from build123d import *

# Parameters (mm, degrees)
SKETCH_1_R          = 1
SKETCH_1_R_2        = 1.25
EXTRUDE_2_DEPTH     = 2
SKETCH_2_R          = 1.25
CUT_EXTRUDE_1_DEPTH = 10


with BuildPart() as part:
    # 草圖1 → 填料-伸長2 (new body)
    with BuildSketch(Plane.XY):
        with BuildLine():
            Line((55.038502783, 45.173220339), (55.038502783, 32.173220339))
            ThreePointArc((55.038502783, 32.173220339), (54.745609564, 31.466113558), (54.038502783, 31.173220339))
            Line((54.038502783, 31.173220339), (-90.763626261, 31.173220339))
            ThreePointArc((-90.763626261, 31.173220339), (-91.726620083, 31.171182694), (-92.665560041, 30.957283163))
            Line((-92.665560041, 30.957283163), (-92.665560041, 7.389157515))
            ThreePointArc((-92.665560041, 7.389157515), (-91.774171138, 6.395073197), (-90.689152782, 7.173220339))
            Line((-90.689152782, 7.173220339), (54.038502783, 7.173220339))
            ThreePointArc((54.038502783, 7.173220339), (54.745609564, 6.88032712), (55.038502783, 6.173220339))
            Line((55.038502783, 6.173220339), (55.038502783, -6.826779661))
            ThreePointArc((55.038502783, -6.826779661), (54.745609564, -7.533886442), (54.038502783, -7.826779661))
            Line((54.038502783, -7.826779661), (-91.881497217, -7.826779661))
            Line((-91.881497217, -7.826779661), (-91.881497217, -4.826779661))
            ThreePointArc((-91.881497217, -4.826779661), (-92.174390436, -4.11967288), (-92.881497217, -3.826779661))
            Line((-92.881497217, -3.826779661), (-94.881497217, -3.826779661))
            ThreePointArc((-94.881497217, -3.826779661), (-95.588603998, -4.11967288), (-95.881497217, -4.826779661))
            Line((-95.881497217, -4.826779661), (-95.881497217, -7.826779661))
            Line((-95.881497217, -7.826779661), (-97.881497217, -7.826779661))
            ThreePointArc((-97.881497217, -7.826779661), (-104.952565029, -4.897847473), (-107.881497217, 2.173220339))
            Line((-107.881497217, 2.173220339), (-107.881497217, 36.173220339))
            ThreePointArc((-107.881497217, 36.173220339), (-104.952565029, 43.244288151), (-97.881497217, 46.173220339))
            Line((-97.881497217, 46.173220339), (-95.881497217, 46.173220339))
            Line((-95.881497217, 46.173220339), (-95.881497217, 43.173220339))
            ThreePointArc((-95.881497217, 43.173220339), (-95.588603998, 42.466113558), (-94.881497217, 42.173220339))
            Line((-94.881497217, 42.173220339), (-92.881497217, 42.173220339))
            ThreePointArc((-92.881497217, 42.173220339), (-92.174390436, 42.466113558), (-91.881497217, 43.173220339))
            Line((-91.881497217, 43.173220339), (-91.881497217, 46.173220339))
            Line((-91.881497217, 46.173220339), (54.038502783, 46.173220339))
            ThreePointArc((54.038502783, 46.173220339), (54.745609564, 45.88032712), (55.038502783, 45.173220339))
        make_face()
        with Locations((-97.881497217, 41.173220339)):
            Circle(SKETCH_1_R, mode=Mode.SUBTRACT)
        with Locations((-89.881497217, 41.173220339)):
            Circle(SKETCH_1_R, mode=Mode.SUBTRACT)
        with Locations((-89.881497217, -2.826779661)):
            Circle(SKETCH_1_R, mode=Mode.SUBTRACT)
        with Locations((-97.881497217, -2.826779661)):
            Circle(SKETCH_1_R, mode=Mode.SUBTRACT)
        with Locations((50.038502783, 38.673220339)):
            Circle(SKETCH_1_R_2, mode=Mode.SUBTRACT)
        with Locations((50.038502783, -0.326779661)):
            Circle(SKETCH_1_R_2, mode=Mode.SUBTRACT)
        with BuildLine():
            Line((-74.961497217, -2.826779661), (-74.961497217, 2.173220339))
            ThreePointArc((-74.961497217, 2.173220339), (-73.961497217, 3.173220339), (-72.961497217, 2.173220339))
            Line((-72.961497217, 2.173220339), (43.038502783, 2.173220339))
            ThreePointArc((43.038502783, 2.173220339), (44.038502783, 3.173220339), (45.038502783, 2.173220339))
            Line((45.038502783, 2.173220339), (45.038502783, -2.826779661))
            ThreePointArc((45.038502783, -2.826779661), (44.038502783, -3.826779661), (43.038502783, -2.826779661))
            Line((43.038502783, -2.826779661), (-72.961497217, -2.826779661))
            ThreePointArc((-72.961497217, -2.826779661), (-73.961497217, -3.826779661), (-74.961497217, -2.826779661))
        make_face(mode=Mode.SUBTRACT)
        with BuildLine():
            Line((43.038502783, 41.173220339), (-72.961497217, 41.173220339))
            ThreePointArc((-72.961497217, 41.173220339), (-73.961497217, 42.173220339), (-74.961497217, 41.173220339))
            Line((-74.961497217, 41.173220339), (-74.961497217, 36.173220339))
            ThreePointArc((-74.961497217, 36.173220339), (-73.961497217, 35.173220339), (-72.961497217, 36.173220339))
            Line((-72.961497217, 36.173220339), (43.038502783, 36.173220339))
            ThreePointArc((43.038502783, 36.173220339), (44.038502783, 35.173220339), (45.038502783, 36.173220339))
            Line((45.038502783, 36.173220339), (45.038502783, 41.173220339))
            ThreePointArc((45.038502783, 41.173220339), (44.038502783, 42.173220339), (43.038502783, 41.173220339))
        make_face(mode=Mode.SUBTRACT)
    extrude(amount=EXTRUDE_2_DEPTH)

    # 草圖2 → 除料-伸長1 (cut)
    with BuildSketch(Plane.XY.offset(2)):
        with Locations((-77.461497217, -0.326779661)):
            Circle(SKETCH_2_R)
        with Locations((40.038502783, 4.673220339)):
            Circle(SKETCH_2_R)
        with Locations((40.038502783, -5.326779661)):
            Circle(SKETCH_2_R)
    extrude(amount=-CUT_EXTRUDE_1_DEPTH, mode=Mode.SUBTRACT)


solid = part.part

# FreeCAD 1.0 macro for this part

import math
import FreeCAD as App
import Part
import Sketcher
from FreeCAD import Vector
Q = App.Units.Quantity

doc = App.newDocument("Part")
body = doc.addObject("PartDesign::Body", "Body")

sketch1 = body.newObject("Sketcher::SketchObject", "Sketch")
sketch1.AttachmentSupport = (doc.getObject("XY_Plane"), [""])
sketch1.MapMode = "FlatFace"
sketch1.addGeometry(Part.LineSegment(Vector(55, 32.2, 0), Vector(55, 45.2, 0)), False)
sketch1.addGeometry(Part.ArcOfCircle(Part.Circle(Vector(54, 45.2, 0), Vector(0, 0, 1), 1), math.radians(0), math.radians(90)), False)
sketch1.addGeometry(Part.LineSegment(Vector(54, 46.2, 0), Vector(-91.9, 46.2, 0)), False)
sketch1.addGeometry(Part.LineSegment(Vector(-91.9, 46.2, 0), Vector(-91.9, 43.2, 0)), False)
sketch1.addGeometry(Part.ArcOfCircle(Part.Circle(Vector(-92.9, 43.2, 0), Vector(0, 0, 1), 1), math.radians(-90), math.radians(0)), False)
sketch1.addGeometry(Part.LineSegment(Vector(-92.9, 42.2, 0), Vector(-94.9, 42.2, 0)), False)
sketch1.addGeometry(Part.ArcOfCircle(Part.Circle(Vector(-94.9, 43.2, 0), Vector(0, 0, 1), 1), math.radians(-180), math.radians(-90)), False)
sketch1.addGeometry(Part.LineSegment(Vector(-95.9, 43.2, 0), Vector(-95.9, 46.2, 0)), False)
sketch1.addGeometry(Part.LineSegment(Vector(-95.9, 46.2, 0), Vector(-97.9, 46.2, 0)), False)
sketch1.addGeometry(Part.ArcOfCircle(Part.Circle(Vector(-97.9, 36.2, 0), Vector(0, 0, 1), 10), math.radians(90), math.radians(180)), False)
sketch1.addGeometry(Part.LineSegment(Vector(-107.9, 36.2, 0), Vector(-107.9, 2.2, 0)), False)
sketch1.addGeometry(Part.ArcOfCircle(Part.Circle(Vector(-97.9, 2.2, 0), Vector(0, 0, 1), 10), math.radians(180), math.radians(270)), False)
sketch1.addGeometry(Part.LineSegment(Vector(-97.9, -7.8, 0), Vector(-95.9, -7.8, 0)), False)
sketch1.addGeometry(Part.LineSegment(Vector(-95.9, -7.8, 0), Vector(-95.9, -4.8, 0)), False)
sketch1.addGeometry(Part.ArcOfCircle(Part.Circle(Vector(-94.9, -4.8, 0), Vector(0, 0, 1), 1), math.radians(90), math.radians(180)), False)
sketch1.addGeometry(Part.LineSegment(Vector(-94.9, -3.8, 0), Vector(-92.9, -3.8, 0)), False)
sketch1.addGeometry(Part.ArcOfCircle(Part.Circle(Vector(-92.9, -4.8, 0), Vector(0, 0, 1), 1), math.radians(0), math.radians(90)), False)
sketch1.addGeometry(Part.LineSegment(Vector(-91.9, -4.8, 0), Vector(-91.9, -7.8, 0)), False)
sketch1.addGeometry(Part.LineSegment(Vector(-91.9, -7.8, 0), Vector(54, -7.8, 0)), False)
sketch1.addGeometry(Part.ArcOfCircle(Part.Circle(Vector(54, -6.8, 0), Vector(0, 0, 1), 1), math.radians(-90), math.radians(0)), False)
sketch1.addGeometry(Part.LineSegment(Vector(55, -6.8, 0), Vector(55, 6.2, 0)), False)
sketch1.addGeometry(Part.ArcOfCircle(Part.Circle(Vector(54, 6.2, 0), Vector(0, 0, 1), 1), math.radians(0), math.radians(90)), False)
sketch1.addGeometry(Part.LineSegment(Vector(54, 7.2, 0), Vector(-90.7, 7.2, 0)), False)
sketch1.addGeometry(Part.ArcOfCircle(Part.Circle(Vector(-91.7, 7.4, 0), Vector(0, 0, 1), 1), math.radians(180), math.radians(348)), False)
sketch1.addGeometry(Part.LineSegment(Vector(-92.7, 7.4, 0), Vector(-92.7, 31, 0)), False)
sketch1.addGeometry(Part.ArcOfCircle(Part.Circle(Vector(-91.2, 26.8, 0), Vector(0, 0, 1), 4.3), math.radians(84), math.radians(109)), False)
sketch1.addGeometry(Part.LineSegment(Vector(-90.8, 31.2, 0), Vector(54, 31.2, 0)), False)
sketch1.addGeometry(Part.ArcOfCircle(Part.Circle(Vector(54, 32.2, 0), Vector(0, 0, 1), 1), math.radians(-90), math.radians(0)), False)
sketch1.addGeometry(Part.Circle(Vector(50, -0.3, 0), Vector(0, 0, 1), 1.2), False)
sketch1.addGeometry(Part.LineSegment(Vector(-75, -2.8, 0), Vector(-75, 2.2, 0)), False)
sketch1.addGeometry(Part.ArcOfCircle(Part.Circle(Vector(-74, 2.2, 0), Vector(0, 0, 1), 1), math.radians(0), math.radians(180)), False)
sketch1.addGeometry(Part.LineSegment(Vector(-73, 2.2, 0), Vector(43, 2.2, 0)), False)
sketch1.addGeometry(Part.ArcOfCircle(Part.Circle(Vector(44, 2.2, 0), Vector(0, 0, 1), 1), math.radians(0), math.radians(180)), False)
sketch1.addGeometry(Part.LineSegment(Vector(45, 2.2, 0), Vector(45, -2.8, 0)), False)
sketch1.addGeometry(Part.ArcOfCircle(Part.Circle(Vector(44, -2.8, 0), Vector(0, 0, 1), 1), math.radians(180), math.radians(360)), False)
sketch1.addGeometry(Part.LineSegment(Vector(43, -2.8, 0), Vector(-73, -2.8, 0)), False)
sketch1.addGeometry(Part.ArcOfCircle(Part.Circle(Vector(-74, -2.8, 0), Vector(0, 0, 1), 1), math.radians(180), math.radians(360)), False)
sketch1.addGeometry(Part.Circle(Vector(-89.9, -2.8, 0), Vector(0, 0, 1), 1), False)
sketch1.addGeometry(Part.Circle(Vector(-97.9, -2.8, 0), Vector(0, 0, 1), 1), False)
sketch1.addGeometry(Part.Circle(Vector(50, 38.7, 0), Vector(0, 0, 1), 1.2), False)
sketch1.addGeometry(Part.ArcOfCircle(Part.Circle(Vector(44, 41.2, 0), Vector(0, 0, 1), 1), math.radians(0), math.radians(180)), False)
sketch1.addGeometry(Part.LineSegment(Vector(45, 41.2, 0), Vector(45, 36.2, 0)), False)
sketch1.addGeometry(Part.ArcOfCircle(Part.Circle(Vector(44, 36.2, 0), Vector(0, 0, 1), 1), math.radians(180), math.radians(360)), False)
sketch1.addGeometry(Part.LineSegment(Vector(43, 36.2, 0), Vector(-73, 36.2, 0)), False)
sketch1.addGeometry(Part.ArcOfCircle(Part.Circle(Vector(-74, 36.2, 0), Vector(0, 0, 1), 1), math.radians(180), math.radians(360)), False)
sketch1.addGeometry(Part.LineSegment(Vector(-75, 36.2, 0), Vector(-75, 41.2, 0)), False)
sketch1.addGeometry(Part.ArcOfCircle(Part.Circle(Vector(-74, 41.2, 0), Vector(0, 0, 1), 1), math.radians(0), math.radians(180)), False)
sketch1.addGeometry(Part.LineSegment(Vector(-73, 41.2, 0), Vector(43, 41.2, 0)), False)
sketch1.addGeometry(Part.Circle(Vector(-89.9, 41.2, 0), Vector(0, 0, 1), 1), False)
sketch1.addGeometry(Part.Circle(Vector(-97.9, 41.2, 0), Vector(0, 0, 1), 1), False)
sketch1.addConstraint(Sketcher.Constraint("Tangent", 0, 2, 1, 1))
sketch1.addConstraint(Sketcher.Constraint("Tangent", 1, 2, 2, 1))
sketch1.addConstraint(Sketcher.Constraint("Coincident", 2, 2, 3, 1))
sketch1.addConstraint(Sketcher.Constraint("Tangent", 3, 2, 4, 2))
sketch1.addConstraint(Sketcher.Constraint("Tangent", 4, 1, 5, 1))
sketch1.addConstraint(Sketcher.Constraint("Tangent", 5, 2, 6, 2))
sketch1.addConstraint(Sketcher.Constraint("Tangent", 6, 1, 7, 1))
sketch1.addConstraint(Sketcher.Constraint("Coincident", 7, 2, 8, 1))
sketch1.addConstraint(Sketcher.Constraint("Tangent", 8, 2, 9, 1))
sketch1.addConstraint(Sketcher.Constraint("Tangent", 9, 2, 10, 1))
sketch1.addConstraint(Sketcher.Constraint("Tangent", 10, 2, 11, 1))
sketch1.addConstraint(Sketcher.Constraint("Tangent", 11, 2, 12, 1))
sketch1.addConstraint(Sketcher.Constraint("Coincident", 12, 2, 13, 1))
sketch1.addConstraint(Sketcher.Constraint("Tangent", 13, 2, 14, 2))
sketch1.addConstraint(Sketcher.Constraint("Tangent", 14, 1, 15, 1))
sketch1.addConstraint(Sketcher.Constraint("Tangent", 15, 2, 16, 2))
sketch1.addConstraint(Sketcher.Constraint("Tangent", 16, 1, 17, 1))
sketch1.addConstraint(Sketcher.Constraint("Coincident", 17, 2, 18, 1))
sketch1.addConstraint(Sketcher.Constraint("Tangent", 18, 2, 19, 1))
sketch1.addConstraint(Sketcher.Constraint("Tangent", 19, 2, 20, 1))
sketch1.addConstraint(Sketcher.Constraint("Tangent", 20, 2, 21, 1))
sketch1.addConstraint(Sketcher.Constraint("Tangent", 21, 2, 22, 1))
sketch1.addConstraint(Sketcher.Constraint("Coincident", 22, 2, 23, 2))
sketch1.addConstraint(Sketcher.Constraint("Tangent", 23, 1, 24, 1))
sketch1.addConstraint(Sketcher.Constraint("Coincident", 24, 2, 25, 2))
sketch1.addConstraint(Sketcher.Constraint("Coincident", 25, 1, 26, 1))
sketch1.addConstraint(Sketcher.Constraint("Tangent", 26, 2, 27, 1))
sketch1.addConstraint(Sketcher.Constraint("Tangent", 27, 2, 0, 1))
sketch1.addConstraint(Sketcher.Constraint("Tangent", 29, 2, 30, 2))
sketch1.addConstraint(Sketcher.Constraint("Coincident", 30, 1, 31, 1))
sketch1.addConstraint(Sketcher.Constraint("Coincident", 31, 2, 32, 2))
sketch1.addConstraint(Sketcher.Constraint("Tangent", 32, 1, 33, 1))
sketch1.addConstraint(Sketcher.Constraint("Tangent", 33, 2, 34, 2))
sketch1.addConstraint(Sketcher.Constraint("Coincident", 34, 1, 35, 1))
sketch1.addConstraint(Sketcher.Constraint("Coincident", 35, 2, 36, 2))
sketch1.addConstraint(Sketcher.Constraint("Tangent", 36, 1, 29, 1))
sketch1.addConstraint(Sketcher.Constraint("Tangent", 40, 1, 41, 1))
sketch1.addConstraint(Sketcher.Constraint("Tangent", 41, 2, 42, 2))
sketch1.addConstraint(Sketcher.Constraint("Coincident", 42, 1, 43, 1))
sketch1.addConstraint(Sketcher.Constraint("Coincident", 43, 2, 44, 2))
sketch1.addConstraint(Sketcher.Constraint("Tangent", 44, 1, 45, 1))
sketch1.addConstraint(Sketcher.Constraint("Tangent", 45, 2, 46, 2))
sketch1.addConstraint(Sketcher.Constraint("Coincident", 46, 1, 47, 1))
sketch1.addConstraint(Sketcher.Constraint("Coincident", 47, 2, 40, 2))
sketch1.addConstraint(Sketcher.Constraint("Vertical", 0))
sketch1.addConstraint(Sketcher.Constraint("Horizontal", 2))
sketch1.addConstraint(Sketcher.Constraint("Vertical", 3))
sketch1.addConstraint(Sketcher.Constraint("Horizontal", 5))
sketch1.addConstraint(Sketcher.Constraint("Vertical", 7))
sketch1.addConstraint(Sketcher.Constraint("Horizontal", 8))
sketch1.addConstraint(Sketcher.Constraint("Vertical", 10))
sketch1.addConstraint(Sketcher.Constraint("Horizontal", 12))
sketch1.addConstraint(Sketcher.Constraint("Vertical", 13))
sketch1.addConstraint(Sketcher.Constraint("Horizontal", 15))
sketch1.addConstraint(Sketcher.Constraint("Vertical", 17))
sketch1.addConstraint(Sketcher.Constraint("Horizontal", 18))
sketch1.addConstraint(Sketcher.Constraint("Vertical", 20))
sketch1.addConstraint(Sketcher.Constraint("Horizontal", 22))
sketch1.addConstraint(Sketcher.Constraint("Vertical", 24))
sketch1.addConstraint(Sketcher.Constraint("Horizontal", 26))
sketch1.addConstraint(Sketcher.Constraint("Vertical", 29))
sketch1.addConstraint(Sketcher.Constraint("Horizontal", 31))
sketch1.addConstraint(Sketcher.Constraint("Vertical", 33))
sketch1.addConstraint(Sketcher.Constraint("Horizontal", 35))
sketch1.addConstraint(Sketcher.Constraint("Vertical", 41))
sketch1.addConstraint(Sketcher.Constraint("Horizontal", 43))
sketch1.addConstraint(Sketcher.Constraint("Vertical", 45))
sketch1.addConstraint(Sketcher.Constraint("Horizontal", 47))
sketch1.addConstraint(Sketcher.Constraint("Equal", 1, 4))
sketch1.addConstraint(Sketcher.Constraint("Equal", 4, 6))
sketch1.addConstraint(Sketcher.Constraint("Equal", 9, 11))
sketch1.addConstraint(Sketcher.Constraint("Equal", 6, 14))
sketch1.addConstraint(Sketcher.Constraint("Equal", 14, 16))
sketch1.addConstraint(Sketcher.Constraint("Equal", 16, 19))
sketch1.addConstraint(Sketcher.Constraint("Equal", 19, 21))
sketch1.addConstraint(Sketcher.Constraint("Equal", 21, 23))
sketch1.addConstraint(Sketcher.Constraint("Equal", 23, 27))
sketch1.addConstraint(Sketcher.Constraint("Equal", 27, 30))
sketch1.addConstraint(Sketcher.Constraint("Equal", 30, 32))
sketch1.addConstraint(Sketcher.Constraint("Equal", 32, 34))
sketch1.addConstraint(Sketcher.Constraint("Equal", 34, 36))
sketch1.addConstraint(Sketcher.Constraint("Equal", 36, 37))
sketch1.addConstraint(Sketcher.Constraint("Equal", 37, 38))
sketch1.addConstraint(Sketcher.Constraint("Equal", 28, 39))
sketch1.addConstraint(Sketcher.Constraint("Equal", 38, 40))
sketch1.addConstraint(Sketcher.Constraint("Equal", 40, 42))
sketch1.addConstraint(Sketcher.Constraint("Equal", 42, 44))
sketch1.addConstraint(Sketcher.Constraint("Equal", 44, 46))
sketch1.addConstraint(Sketcher.Constraint("Equal", 46, 48))
sketch1.addConstraint(Sketcher.Constraint("Equal", 48, 49))
sketch1.addConstraint(Sketcher.Constraint("Horizontal", 11, 3, 30, 3))
sketch1.addConstraint(Sketcher.Constraint("Horizontal", 30, 3, 32, 3))
sketch1.addConstraint(Sketcher.Constraint("Horizontal", 34, 3, 36, 3))
sketch1.addConstraint(Sketcher.Constraint("Horizontal", 36, 3, 37, 3))
sketch1.addConstraint(Sketcher.Constraint("Horizontal", 37, 3, 38, 3))
sketch1.addConstraint(Sketcher.Constraint("Horizontal", 9, 3, 42, 3))
sketch1.addConstraint(Sketcher.Constraint("Horizontal", 42, 3, 44, 3))
sketch1.addConstraint(Sketcher.Constraint("Horizontal", 40, 3, 46, 3))
sketch1.addConstraint(Sketcher.Constraint("Horizontal", 46, 3, 48, 3))
sketch1.addConstraint(Sketcher.Constraint("Horizontal", 48, 3, 49, 3))
sketch1.addConstraint(Sketcher.Constraint("Horizontal", 2, 2, 7, 2))
sketch1.addConstraint(Sketcher.Constraint("Horizontal", 12, 2, 17, 2))
sketch1.addConstraint(Sketcher.Constraint("Horizontal", 29, 2, 30, 1))
sketch1.addConstraint(Sketcher.Constraint("Horizontal", 33, 2, 34, 1))
sketch1.addConstraint(Sketcher.Constraint("Horizontal", 41, 2, 42, 1))
sketch1.addConstraint(Sketcher.Constraint("Horizontal", 45, 2, 46, 1))
sketch1.addConstraint(Sketcher.Constraint("Vertical", 6, 3, 14, 3))
sketch1.addConstraint(Sketcher.Constraint("Vertical", 4, 3, 16, 3))
sketch1.addConstraint(Sketcher.Constraint("Vertical", 1, 3, 19, 3))
sketch1.addConstraint(Sketcher.Constraint("Vertical", 11, 3, 38, 3))
sketch1.addConstraint(Sketcher.Constraint("Vertical", 28, 3, 39, 3))
sketch1.addConstraint(Sketcher.Constraint("Vertical", 34, 3, 40, 3))
sketch1.addConstraint(Sketcher.Constraint("Vertical", 36, 3, 44, 3))
sketch1.addConstraint(Sketcher.Constraint("Vertical", 37, 3, 48, 3))
sketch1.addConstraint(Sketcher.Constraint("Vertical", 38, 3, 49, 3))
sketch1.addConstraint(Sketcher.Constraint("Equal", 5, 8))
sketch1.addConstraint(Sketcher.Constraint("Equal", 7, 13))
sketch1.addConstraint(Sketcher.Constraint("Equal", 0, 20))
sketch1.addConstraint(Sketcher.Constraint("Equal", 33, 41))
sketch1.addConstraint(Sketcher.Constraint("Diameter", 37, Q("2 mm")))
sketch1.addConstraint(Sketcher.Constraint("Radius", 9, Q("10 mm")))
sketch1.addConstraint(Sketcher.Constraint("Diameter", 28, Q("2.5 mm")))
sketch1.addConstraint(Sketcher.Constraint("DistanceX", 5, 2, 5, 1, Q("2 mm")))
sketch1.addConstraint(Sketcher.Constraint("DistanceX", 31, 1, 31, 2, Q("116 mm")))
sketch1.addConstraint(Sketcher.Constraint("DistanceY", 0, 1, 0, 2, Q("13 mm")))
sketch1.addConstraint(Sketcher.Constraint("DistanceY", 3, 2, 3, 1, Q("3 mm")))
sketch1.addConstraint(Sketcher.Constraint("DistanceY", 10, 2, 10, 1, Q("34 mm")))
sketch1.addConstraint(Sketcher.Constraint("DistanceY", 29, 1, 29, 2, Q("5 mm")))
sketch1.addConstraint(Sketcher.Constraint("DistanceX", 2, 2, 2, 1, Q("145.92 mm")))
sketch1.addConstraint(Sketcher.Constraint("Radius", 25, Q("4.349255 mm")))
sketch1.addConstraint(Sketcher.Constraint("DistanceX", 26, 1, 26, 2, Q("144.802129 mm")))
sketch1.addConstraint(Sketcher.Constraint("DistanceX", 22, 2, 22, 1, Q("144.727656 mm")))
sketch1.addConstraint(Sketcher.Constraint("DistanceY", 24, 1, 24, 2, Q("23.568126 mm")))
sketch1.addConstraint(Sketcher.Constraint("DistanceY", -1, 1, 1, 3, Q("45.17322 mm")))
sketch1.addConstraint(Sketcher.Constraint("DistanceX", 23, 3, -1, 1, Q("91.66556 mm")))
sketch1.addConstraint(Sketcher.Constraint("DistanceY", -1, 1, 25, 3, Q("26.849691 mm")))
sketch1.addConstraint(Sketcher.Constraint("DistanceY", 28, 3, -1, 1, Q("0.32678 mm")))
sketch1.addConstraint(Sketcher.Constraint("DistanceY", -1, 1, 39, 3, Q("38.67322 mm")))
sketch1.addConstraint(Sketcher.Constraint("DistanceX", -1, 1, 28, 3, Q("50.038503 mm")))
sketch1.addConstraint(Sketcher.Constraint("DistanceX", 30, 3, -1, 1, Q("73.961497 mm")))
sketch1.addConstraint(Sketcher.Constraint("DistanceX", 37, 3, -1, 1, Q("89.881497 mm")))
pad1 = body.newObject("PartDesign::Pad", "Pad")
pad1.Profile = sketch1
pad1.Length = 2

sketch2 = body.newObject("Sketcher::SketchObject", "Sketch001")
sketch2.AttachmentSupport = (doc.getObject("XY_Plane"), [""])
sketch2.MapMode = "FlatFace"
sketch2.AttachmentOffset = App.Placement(Vector(0, 0, 2), App.Rotation())
sketch2.addGeometry(Part.Circle(Vector(-77.5, -0.3, 0), Vector(0, 0, 1), 1.2), False)
sketch2.addGeometry(Part.Circle(Vector(40, 4.7, 0), Vector(0, 0, 1), 1.2), False)
sketch2.addGeometry(Part.Circle(Vector(40, -5.3, 0), Vector(0, 0, 1), 1.2), False)
sketch2.addConstraint(Sketcher.Constraint("Equal", 0, 1))
sketch2.addConstraint(Sketcher.Constraint("Equal", 1, 2))
sketch2.addConstraint(Sketcher.Constraint("Vertical", 1, 3, 2, 3))
sketch2.addConstraint(Sketcher.Constraint("Diameter", 0, Q("2.5 mm")))
sketch2.addConstraint(Sketcher.Constraint("DistanceY", 0, 3, 1, 3, Q("5 mm")))
sketch2.addConstraint(Sketcher.Constraint("DistanceY", 2, 3, 1, 3, Q("10 mm")))
sketch2.addConstraint(Sketcher.Constraint("DistanceX", 0, 3, 1, 3, Q("117.5 mm")))
sketch2.addConstraint(Sketcher.Constraint("DistanceY", 0, 3, -1, 1, Q("0.32678 mm")))
sketch2.addConstraint(Sketcher.Constraint("DistanceX", 0, 3, -1, 1, Q("77.461497 mm")))
pocket1 = body.newObject("PartDesign::Pocket", "Pocket")
pocket1.Profile = sketch2
pocket1.Length = 10

doc.recompute()
